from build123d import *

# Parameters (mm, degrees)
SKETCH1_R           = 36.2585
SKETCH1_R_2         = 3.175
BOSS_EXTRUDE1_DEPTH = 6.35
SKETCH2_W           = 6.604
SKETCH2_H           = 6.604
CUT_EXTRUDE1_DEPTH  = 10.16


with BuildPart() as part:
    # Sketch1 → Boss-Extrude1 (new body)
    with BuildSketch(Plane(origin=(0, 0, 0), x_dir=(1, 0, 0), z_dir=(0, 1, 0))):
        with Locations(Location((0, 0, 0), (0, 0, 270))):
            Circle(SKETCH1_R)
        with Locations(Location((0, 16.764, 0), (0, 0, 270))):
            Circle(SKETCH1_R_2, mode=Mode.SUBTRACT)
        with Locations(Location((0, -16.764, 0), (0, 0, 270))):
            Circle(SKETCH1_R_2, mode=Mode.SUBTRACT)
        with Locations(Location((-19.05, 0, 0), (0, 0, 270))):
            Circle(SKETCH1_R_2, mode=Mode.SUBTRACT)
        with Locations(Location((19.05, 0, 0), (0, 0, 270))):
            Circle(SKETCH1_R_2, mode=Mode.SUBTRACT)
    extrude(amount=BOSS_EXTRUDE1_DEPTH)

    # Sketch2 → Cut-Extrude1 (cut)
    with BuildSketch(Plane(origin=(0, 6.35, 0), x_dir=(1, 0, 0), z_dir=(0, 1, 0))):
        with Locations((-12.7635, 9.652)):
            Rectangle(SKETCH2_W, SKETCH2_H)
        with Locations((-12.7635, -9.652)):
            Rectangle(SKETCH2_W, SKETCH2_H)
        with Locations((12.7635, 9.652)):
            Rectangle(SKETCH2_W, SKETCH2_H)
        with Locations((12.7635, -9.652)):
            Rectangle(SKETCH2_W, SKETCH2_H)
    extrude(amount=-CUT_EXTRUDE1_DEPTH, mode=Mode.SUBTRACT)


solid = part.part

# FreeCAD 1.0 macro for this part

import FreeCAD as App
import Part
import Sketcher
from FreeCAD import Vector
Q = App.Units.Quantity

doc = App.newDocument("Part")
body = doc.addObject("PartDesign::Body", "Body")

# Sketch on XZ plane
sketch1 = doc.addObject("Sketcher::SketchObject", "Sketch")
body.addObject(sketch1)
sketch1.AttachmentSupport = (doc.XZ_Plane, [""])
sketch1.MapMode = "FlatFace"
sketch1.addGeometry([
    Part.Circle(Vector(0, 0, 0), Vector(0, 0, 1), 36.2585),  # 0
    Part.Circle(Vector(0, -16.764, 0), Vector(0, 0, 1), 3.175),  # 1
    Part.Circle(Vector(-19.05, 0, 0), Vector(0, 0, 1), 3.175),  # 2
    Part.Circle(Vector(19.05, 0, 0), Vector(0, 0, 1), 3.175),  # 3
    Part.Circle(Vector(0, 16.764, 0), Vector(0, 0, 1), 3.175),  # 4
], False)
sketch1.addConstraint([
    Sketcher.Constraint("Coincident", 0, 3, -1, 1),
    Sketcher.Constraint("Equal", 1, 2),
    Sketcher.Constraint("Equal", 2, 3),
    Sketcher.Constraint("Equal", 3, 4),
    Sketcher.Constraint("Symmetric", 2, 3, 3, 3, -1, 1),
    Sketcher.Constraint("Symmetric", 1, 3, 4, 3, -1, 1),
    Sketcher.Constraint("PointOnObject", 1, 3, -2),
    Sketcher.Constraint("PointOnObject", 2, 3, -1),
    Sketcher.Constraint("Diameter", 1, Q("0.25 in")),
    Sketcher.Constraint("Diameter", 0, Q("2.855 in")),
    Sketcher.Constraint("DistanceX", 2, 3, 3, 3, Q("1.5 in")),
    Sketcher.Constraint("DistanceY", 1, 3, -1, 1, Q("0.66 in")),
])
pad1 = doc.addObject("PartDesign::Pad", "Pad")
body.addObject(pad1)
pad1.Profile = sketch1
pad1.Length = Q("0.25 in")
pad1.Reversed = True

# Sketch on XZ plane
sketch2 = doc.addObject("Sketcher::SketchObject", "Sketch001")
body.addObject(sketch2)
sketch2.AttachmentSupport = (doc.XZ_Plane, [""])
sketch2.MapMode = "FlatFace"
sketch2.AttachmentOffset = App.Placement(Vector(0, 0, -0.25 * 25.4), App.Rotation())
sketch2.addGeometry([
    Part.LineSegment(Vector(-16.0655, -12.954, 0), Vector(-16.0655, -6.35, 0)),  # 0
    Part.LineSegment(Vector(-16.0655, -6.35, 0), Vector(-9.4615, -6.35, 0)),  # 1
    Part.LineSegment(Vector(-9.4615, -6.35, 0), Vector(-9.4615, -12.954, 0)),  # 2
    Part.LineSegment(Vector(-9.4615, -12.954, 0), Vector(-16.0655, -12.954, 0)),  # 3
    Part.LineSegment(Vector(-16.0655, 6.35, 0), Vector(-16.0655, 12.954, 0)),  # 4
    Part.LineSegment(Vector(-16.0655, 12.954, 0), Vector(-9.4615, 12.954, 0)),  # 5
    Part.LineSegment(Vector(-9.4615, 12.954, 0), Vector(-9.4615, 6.35, 0)),  # 6
    Part.LineSegment(Vector(-9.4615, 6.35, 0), Vector(-16.0655, 6.35, 0)),  # 7
    Part.LineSegment(Vector(9.4615, -12.954, 0), Vector(9.4615, -6.35, 0)),  # 8
    Part.LineSegment(Vector(9.4615, -6.35, 0), Vector(16.0655, -6.35, 0)),  # 9
    Part.LineSegment(Vector(16.0655, -6.35, 0), Vector(16.0655, -12.954, 0)),  # 10
    Part.LineSegment(Vector(16.0655, -12.954, 0), Vector(9.4615, -12.954, 0)),  # 11
    Part.LineSegment(Vector(9.4615, 6.35, 0), Vector(9.4615, 12.954, 0)),  # 12
    Part.LineSegment(Vector(9.4615, 12.954, 0), Vector(16.0655, 12.954, 0)),  # 13
    Part.LineSegment(Vector(16.0655, 12.954, 0), Vector(16.0655, 6.35, 0)),  # 14
    Part.LineSegment(Vector(16.0655, 6.35, 0), Vector(9.4615, 6.35, 0)),  # 15
], False)
sketch2.addConstraint([
    Sketcher.Constraint("Coincident", 0, 2, 1, 1),
    Sketcher.Constraint("Coincident", 1, 2, 2, 1),
    Sketcher.Constraint("Coincident", 2, 2, 3, 1),
    Sketcher.Constraint("Coincident", 3, 2, 0, 1),
    Sketcher.Constraint("Coincident", 4, 2, 5, 1),
    Sketcher.Constraint("Coincident", 5, 2, 6, 1),
    Sketcher.Constraint("Coincident", 6, 2, 7, 1),
    Sketcher.Constraint("Coincident", 7, 2, 4, 1),
    Sketcher.Constraint("Coincident", 8, 2, 9, 1),
    Sketcher.Constraint("Coincident", 9, 2, 10, 1),
    Sketcher.Constraint("Coincident", 10, 2, 11, 1),
    Sketcher.Constraint("Coincident", 11, 2, 8, 1),
    Sketcher.Constraint("Coincident", 12, 2, 13, 1),
    Sketcher.Constraint("Coincident", 13, 2, 14, 1),
    Sketcher.Constraint("Coincident", 14, 2, 15, 1),
    Sketcher.Constraint("Coincident", 15, 2, 12, 1),
    Sketcher.Constraint("Vertical", 0),
    Sketcher.Constraint("Horizontal", 1),
    Sketcher.Constraint("Vertical", 2),
    Sketcher.Constraint("Horizontal", 3),
    Sketcher.Constraint("Vertical", 4),
    Sketcher.Constraint("Horizontal", 5),
    Sketcher.Constraint("Vertical", 6),
    Sketcher.Constraint("Horizontal", 7),
    Sketcher.Constraint("Vertical", 8),
    Sketcher.Constraint("Horizontal", 9),
    Sketcher.Constraint("Vertical", 10),
    Sketcher.Constraint("Horizontal", 11),
    Sketcher.Constraint("Vertical", 12),
    Sketcher.Constraint("Horizontal", 13),
    Sketcher.Constraint("Vertical", 14),
    Sketcher.Constraint("Horizontal", 15),
    Sketcher.Constraint("Symmetric", 6, 2, 8, 2, -1, 1),
    Sketcher.Constraint("Symmetric", 4, 2, 10, 2, -1, 1),
    Sketcher.Constraint("Symmetric", 2, 2, 12, 2, -1, 1),
    Sketcher.Constraint("Symmetric", 0, 2, 14, 2, -1, 1),
    Sketcher.Constraint("Symmetric", 1, 2, 8, 2, -2),
    Sketcher.Constraint("Symmetric", 3, 2, 10, 2, -2),
    Sketcher.Constraint("Equal", 15, 0),
    Sketcher.Constraint("DistanceX", 1, 1, 1, 2, Q("0.26 in")),
    Sketcher.Constraint("DistanceY", 1, 2, 6, 2, Q("0.5 in")),
    Sketcher.Constraint("DistanceX", 1, 2, 8, 2, Q("0.745 in")),
])
pocket1 = doc.addObject("PartDesign::Pocket", "Pocket")
body.addObject(pocket1)
pocket1.Profile = sketch2
pocket1.Length = Q("0.4 in")
pocket1.Reversed = True

doc.recompute()
